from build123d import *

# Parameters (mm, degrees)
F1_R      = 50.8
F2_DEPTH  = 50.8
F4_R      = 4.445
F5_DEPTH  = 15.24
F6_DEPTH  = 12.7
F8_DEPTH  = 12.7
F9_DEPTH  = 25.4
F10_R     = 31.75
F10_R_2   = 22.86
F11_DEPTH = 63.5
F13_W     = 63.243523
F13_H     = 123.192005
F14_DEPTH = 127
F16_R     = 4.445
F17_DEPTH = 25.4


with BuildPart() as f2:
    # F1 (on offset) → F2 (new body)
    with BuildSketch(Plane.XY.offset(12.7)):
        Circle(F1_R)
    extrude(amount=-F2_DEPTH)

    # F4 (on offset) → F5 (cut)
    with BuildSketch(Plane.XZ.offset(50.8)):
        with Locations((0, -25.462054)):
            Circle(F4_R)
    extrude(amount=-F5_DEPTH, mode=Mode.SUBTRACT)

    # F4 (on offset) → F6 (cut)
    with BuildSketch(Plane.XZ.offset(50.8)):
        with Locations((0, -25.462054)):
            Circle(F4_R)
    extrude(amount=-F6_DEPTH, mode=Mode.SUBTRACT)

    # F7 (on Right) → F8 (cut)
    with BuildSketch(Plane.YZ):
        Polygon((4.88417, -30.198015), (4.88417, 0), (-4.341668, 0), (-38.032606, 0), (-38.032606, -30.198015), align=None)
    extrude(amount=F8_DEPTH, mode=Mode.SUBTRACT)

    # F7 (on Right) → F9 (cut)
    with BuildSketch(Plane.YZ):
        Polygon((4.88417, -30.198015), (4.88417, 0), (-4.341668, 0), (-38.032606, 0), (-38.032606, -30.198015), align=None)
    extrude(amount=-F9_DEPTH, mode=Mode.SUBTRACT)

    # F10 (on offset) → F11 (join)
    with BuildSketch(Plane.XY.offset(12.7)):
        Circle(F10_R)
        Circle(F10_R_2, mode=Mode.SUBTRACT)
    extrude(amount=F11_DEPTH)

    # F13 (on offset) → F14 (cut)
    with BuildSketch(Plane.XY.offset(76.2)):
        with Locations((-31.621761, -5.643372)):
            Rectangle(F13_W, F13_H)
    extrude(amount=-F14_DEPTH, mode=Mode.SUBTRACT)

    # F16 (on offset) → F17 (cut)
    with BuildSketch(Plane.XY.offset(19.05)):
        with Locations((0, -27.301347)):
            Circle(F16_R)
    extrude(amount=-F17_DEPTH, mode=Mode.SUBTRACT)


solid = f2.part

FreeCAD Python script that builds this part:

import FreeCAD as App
import Part
import Sketcher
from FreeCAD import Vector
Q = App.Units.Quantity


def add_polygon(sketch, points):
    """Adds a closed chain of lines whose ends are joined by coincident constraints."""
    first, n = sketch.GeometryCount, len(points)
    for a, b in zip(points, points[1:] + points[:1]):
        sketch.addGeometry(Part.LineSegment(App.Vector(*a, 0), App.Vector(*b, 0)), False)
    for i in range(n):
        sketch.addConstraint(Sketcher.Constraint("Coincident", first + i, 2, first + (i + 1) % n, 1))

doc = App.newDocument("Part")
body = doc.addObject("PartDesign::Body", "Body")

sketch1 = doc.addObject("Sketcher::SketchObject", "Sketch")
body.addObject(sketch1)
sketch1.AttachmentSupport = (doc.XY_Plane, [""])
sketch1.MapMode = "FlatFace"
sketch1.AttachmentOffset = App.Placement(Vector(0, 0, 0.5 * 25.4), App.Rotation())
sketch1.addGeometry(Part.Circle(Vector(0, 0, 0), Vector(0, 0, 1), 51), False)
sketch1.addConstraint([
    Sketcher.Constraint("Coincident", 0, 3, -1, 1),
    Sketcher.Constraint("Diameter", 0, Q("4 in")),
])
pad1 = doc.addObject("PartDesign::Pad", "Pad")
body.addObject(pad1)
pad1.Profile = sketch1
pad1.Length = Q("2 in")
pad1.Reversed = True

sketch2 = doc.addObject("Sketcher::SketchObject", "Sketch001")
body.addObject(sketch2)
sketch2.AttachmentSupport = (doc.XZ_Plane, [""])
sketch2.MapMode = "FlatFace"
sketch2.AttachmentOffset = App.Placement(Vector(0, 0, 2 * 25.4), App.Rotation())
sketch2.addGeometry(Part.Circle(Vector(0, -25.5, 0), Vector(0, 0, 1), 4.4), False)
sketch2.addConstraint([
    Sketcher.Constraint("PointOnObject", 0, 3, -2),
    Sketcher.Constraint("Diameter", 0, Q("0.35 in")),
    Sketcher.Constraint("DistanceY", 0, 3, -1, 1, 25.462054),
])
pocket1 = doc.addObject("PartDesign::Pocket", "Pocket")
body.addObject(pocket1)
pocket1.Profile = sketch2
pocket1.Length = Q("0.6 in")

sketch3 = doc.addObject("Sketcher::SketchObject", "Sketch002")
body.addObject(sketch3)
sketch3.AttachmentSupport = (doc.XZ_Plane, [""])
sketch3.MapMode = "FlatFace"
sketch3.AttachmentOffset = App.Placement(Vector(0, 0, 2 * 25.4), App.Rotation())
sketch3.addGeometry(Part.Circle(Vector(0, -25.5, 0), Vector(0, 0, 1), 4.4), False)
sketch3.addConstraint([
    Sketcher.Constraint("PointOnObject", 0, 3, -2),
    Sketcher.Constraint("Diameter", 0, Q("0.35 in")),
    Sketcher.Constraint("DistanceY", 0, 3, -1, 1, 25.462054),
])
pocket2 = doc.addObject("PartDesign::Pocket", "Pocket001")
body.addObject(pocket2)
pocket2.Profile = sketch3
pocket2.Length = Q("0.5 in")

sketch4 = doc.addObject("Sketcher::SketchObject", "Sketch003")
body.addObject(sketch4)
sketch4.AttachmentSupport = (doc.YZ_Plane, [""])
sketch4.MapMode = "FlatFace"
add_polygon(sketch4, [(5, -30), (5, 0), (-38, 0), (-38, -30)])
sketch4.addConstraint([
    Sketcher.Constraint("Vertical", 0),
    Sketcher.Constraint("Horizontal", 1),
    Sketcher.Constraint("Vertical", 2),
    Sketcher.Constraint("Horizontal", 3),
    Sketcher.Constraint("PointOnObject", 0, 2, -1),
    Sketcher.Constraint("DistanceX", 1, 2, 1, 1, 42.916776),
    Sketcher.Constraint("DistanceY", 0, 1, 0, 2, 30.198015),
    Sketcher.Constraint("DistanceX", -1, 1, 0, 2, 4.88417),
])
pocket3 = doc.addObject("PartDesign::Pocket", "Pocket002")
body.addObject(pocket3)
pocket3.Profile = sketch4
pocket3.Length = Q("0.5 in")
pocket3.Reversed = True

sketch5 = doc.addObject("Sketcher::SketchObject", "Sketch004")
body.addObject(sketch5)
sketch5.AttachmentSupport = (doc.YZ_Plane, [""])
sketch5.MapMode = "FlatFace"
add_polygon(sketch5, [(5, -30), (5, 0), (-38, 0), (-38, -30)])
sketch5.addConstraint([
    Sketcher.Constraint("Vertical", 0),
    Sketcher.Constraint("Horizontal", 1),
    Sketcher.Constraint("Vertical", 2),
    Sketcher.Constraint("Horizontal", 3),
    Sketcher.Constraint("PointOnObject", 0, 2, -1),
    Sketcher.Constraint("DistanceX", 1, 2, 1, 1, 42.916776),
    Sketcher.Constraint("DistanceY", 0, 1, 0, 2, 30.198015),
    Sketcher.Constraint("DistanceX", -1, 1, 0, 2, 4.88417),
])
pocket4 = doc.addObject("PartDesign::Pocket", "Pocket003")
body.addObject(pocket4)
pocket4.Profile = sketch5
pocket4.Length = Q("1 in")

sketch6 = doc.addObject("Sketcher::SketchObject", "Sketch005")
body.addObject(sketch6)
sketch6.AttachmentSupport = (doc.XY_Plane, [""])
sketch6.MapMode = "FlatFace"
sketch6.AttachmentOffset = App.Placement(Vector(0, 0, 0.5 * 25.4), App.Rotation())
sketch6.addGeometry([
    Part.Circle(Vector(0, 0, 0), Vector(0, 0, 1), 32),
    Part.Circle(Vector(0, 0, 0), Vector(0, 0, 1), 23),
], False)
sketch6.addConstraint([
    Sketcher.Constraint("Coincident", 0, 3, -1, 1),
    Sketcher.Constraint("Coincident", 1, 3, -1, 1),
    Sketcher.Constraint("Diameter", 0, Q("2.5 in")),
    Sketcher.Constraint("Diameter", 1, Q("1.8 in")),
])
pad2 = doc.addObject("PartDesign::Pad", "Pad001")
body.addObject(pad2)
pad2.Profile = sketch6
pad2.Length = Q("2.5 in")

sketch7 = doc.addObject("Sketcher::SketchObject", "Sketch006")
body.addObject(sketch7)
sketch7.AttachmentSupport = (doc.XY_Plane, [""])
sketch7.MapMode = "FlatFace"
sketch7.AttachmentOffset = App.Placement(Vector(0, 0, 3 * 25.4), App.Rotation())
add_polygon(sketch7, [(-63, 56), (-63, -67), (0, -67), (0, 56)])
sketch7.addConstraint([
    Sketcher.Constraint("Vertical", 0),
    Sketcher.Constraint("Horizontal", 1),
    Sketcher.Constraint("Vertical", 2),
    Sketcher.Constraint("Horizontal", 3),
    Sketcher.Constraint("PointOnObject", 1, 2, -2),
    Sketcher.Constraint("DistanceX", 1, 1, 1, 2, 63.243523),
    Sketcher.Constraint("DistanceY", 0, 2, 0, 1, 123.192005),
    Sketcher.Constraint("DistanceY", -1, 1, 2, 2, 55.95263),
])
pocket5 = doc.addObject("PartDesign::Pocket", "Pocket004")
body.addObject(pocket5)
pocket5.Profile = sketch7
pocket5.Length = Q("5 in")

sketch8 = doc.addObject("Sketcher::SketchObject", "Sketch007")
body.addObject(sketch8)
sketch8.AttachmentSupport = (doc.XY_Plane, [""])
sketch8.MapMode = "FlatFace"
sketch8.AttachmentOffset = App.Placement(Vector(0, 0, 0.75 * 25.4), App.Rotation())
sketch8.addGeometry(Part.Circle(Vector(0, -27.3, 0), Vector(0, 0, 1), 4.4), False)
sketch8.addConstraint([
    Sketcher.Constraint("PointOnObject", 0, 3, -2),
    Sketcher.Constraint("Diameter", 0, Q("0.35 in")),
    Sketcher.Constraint("DistanceY", 0, 3, -1, 1, 27.301347),
])
pocket6 = doc.addObject("PartDesign::Pocket", "Pocket005")
body.addObject(pocket6)
pocket6.Profile = sketch8
pocket6.Length = Q("1 in")

doc.recompute()
